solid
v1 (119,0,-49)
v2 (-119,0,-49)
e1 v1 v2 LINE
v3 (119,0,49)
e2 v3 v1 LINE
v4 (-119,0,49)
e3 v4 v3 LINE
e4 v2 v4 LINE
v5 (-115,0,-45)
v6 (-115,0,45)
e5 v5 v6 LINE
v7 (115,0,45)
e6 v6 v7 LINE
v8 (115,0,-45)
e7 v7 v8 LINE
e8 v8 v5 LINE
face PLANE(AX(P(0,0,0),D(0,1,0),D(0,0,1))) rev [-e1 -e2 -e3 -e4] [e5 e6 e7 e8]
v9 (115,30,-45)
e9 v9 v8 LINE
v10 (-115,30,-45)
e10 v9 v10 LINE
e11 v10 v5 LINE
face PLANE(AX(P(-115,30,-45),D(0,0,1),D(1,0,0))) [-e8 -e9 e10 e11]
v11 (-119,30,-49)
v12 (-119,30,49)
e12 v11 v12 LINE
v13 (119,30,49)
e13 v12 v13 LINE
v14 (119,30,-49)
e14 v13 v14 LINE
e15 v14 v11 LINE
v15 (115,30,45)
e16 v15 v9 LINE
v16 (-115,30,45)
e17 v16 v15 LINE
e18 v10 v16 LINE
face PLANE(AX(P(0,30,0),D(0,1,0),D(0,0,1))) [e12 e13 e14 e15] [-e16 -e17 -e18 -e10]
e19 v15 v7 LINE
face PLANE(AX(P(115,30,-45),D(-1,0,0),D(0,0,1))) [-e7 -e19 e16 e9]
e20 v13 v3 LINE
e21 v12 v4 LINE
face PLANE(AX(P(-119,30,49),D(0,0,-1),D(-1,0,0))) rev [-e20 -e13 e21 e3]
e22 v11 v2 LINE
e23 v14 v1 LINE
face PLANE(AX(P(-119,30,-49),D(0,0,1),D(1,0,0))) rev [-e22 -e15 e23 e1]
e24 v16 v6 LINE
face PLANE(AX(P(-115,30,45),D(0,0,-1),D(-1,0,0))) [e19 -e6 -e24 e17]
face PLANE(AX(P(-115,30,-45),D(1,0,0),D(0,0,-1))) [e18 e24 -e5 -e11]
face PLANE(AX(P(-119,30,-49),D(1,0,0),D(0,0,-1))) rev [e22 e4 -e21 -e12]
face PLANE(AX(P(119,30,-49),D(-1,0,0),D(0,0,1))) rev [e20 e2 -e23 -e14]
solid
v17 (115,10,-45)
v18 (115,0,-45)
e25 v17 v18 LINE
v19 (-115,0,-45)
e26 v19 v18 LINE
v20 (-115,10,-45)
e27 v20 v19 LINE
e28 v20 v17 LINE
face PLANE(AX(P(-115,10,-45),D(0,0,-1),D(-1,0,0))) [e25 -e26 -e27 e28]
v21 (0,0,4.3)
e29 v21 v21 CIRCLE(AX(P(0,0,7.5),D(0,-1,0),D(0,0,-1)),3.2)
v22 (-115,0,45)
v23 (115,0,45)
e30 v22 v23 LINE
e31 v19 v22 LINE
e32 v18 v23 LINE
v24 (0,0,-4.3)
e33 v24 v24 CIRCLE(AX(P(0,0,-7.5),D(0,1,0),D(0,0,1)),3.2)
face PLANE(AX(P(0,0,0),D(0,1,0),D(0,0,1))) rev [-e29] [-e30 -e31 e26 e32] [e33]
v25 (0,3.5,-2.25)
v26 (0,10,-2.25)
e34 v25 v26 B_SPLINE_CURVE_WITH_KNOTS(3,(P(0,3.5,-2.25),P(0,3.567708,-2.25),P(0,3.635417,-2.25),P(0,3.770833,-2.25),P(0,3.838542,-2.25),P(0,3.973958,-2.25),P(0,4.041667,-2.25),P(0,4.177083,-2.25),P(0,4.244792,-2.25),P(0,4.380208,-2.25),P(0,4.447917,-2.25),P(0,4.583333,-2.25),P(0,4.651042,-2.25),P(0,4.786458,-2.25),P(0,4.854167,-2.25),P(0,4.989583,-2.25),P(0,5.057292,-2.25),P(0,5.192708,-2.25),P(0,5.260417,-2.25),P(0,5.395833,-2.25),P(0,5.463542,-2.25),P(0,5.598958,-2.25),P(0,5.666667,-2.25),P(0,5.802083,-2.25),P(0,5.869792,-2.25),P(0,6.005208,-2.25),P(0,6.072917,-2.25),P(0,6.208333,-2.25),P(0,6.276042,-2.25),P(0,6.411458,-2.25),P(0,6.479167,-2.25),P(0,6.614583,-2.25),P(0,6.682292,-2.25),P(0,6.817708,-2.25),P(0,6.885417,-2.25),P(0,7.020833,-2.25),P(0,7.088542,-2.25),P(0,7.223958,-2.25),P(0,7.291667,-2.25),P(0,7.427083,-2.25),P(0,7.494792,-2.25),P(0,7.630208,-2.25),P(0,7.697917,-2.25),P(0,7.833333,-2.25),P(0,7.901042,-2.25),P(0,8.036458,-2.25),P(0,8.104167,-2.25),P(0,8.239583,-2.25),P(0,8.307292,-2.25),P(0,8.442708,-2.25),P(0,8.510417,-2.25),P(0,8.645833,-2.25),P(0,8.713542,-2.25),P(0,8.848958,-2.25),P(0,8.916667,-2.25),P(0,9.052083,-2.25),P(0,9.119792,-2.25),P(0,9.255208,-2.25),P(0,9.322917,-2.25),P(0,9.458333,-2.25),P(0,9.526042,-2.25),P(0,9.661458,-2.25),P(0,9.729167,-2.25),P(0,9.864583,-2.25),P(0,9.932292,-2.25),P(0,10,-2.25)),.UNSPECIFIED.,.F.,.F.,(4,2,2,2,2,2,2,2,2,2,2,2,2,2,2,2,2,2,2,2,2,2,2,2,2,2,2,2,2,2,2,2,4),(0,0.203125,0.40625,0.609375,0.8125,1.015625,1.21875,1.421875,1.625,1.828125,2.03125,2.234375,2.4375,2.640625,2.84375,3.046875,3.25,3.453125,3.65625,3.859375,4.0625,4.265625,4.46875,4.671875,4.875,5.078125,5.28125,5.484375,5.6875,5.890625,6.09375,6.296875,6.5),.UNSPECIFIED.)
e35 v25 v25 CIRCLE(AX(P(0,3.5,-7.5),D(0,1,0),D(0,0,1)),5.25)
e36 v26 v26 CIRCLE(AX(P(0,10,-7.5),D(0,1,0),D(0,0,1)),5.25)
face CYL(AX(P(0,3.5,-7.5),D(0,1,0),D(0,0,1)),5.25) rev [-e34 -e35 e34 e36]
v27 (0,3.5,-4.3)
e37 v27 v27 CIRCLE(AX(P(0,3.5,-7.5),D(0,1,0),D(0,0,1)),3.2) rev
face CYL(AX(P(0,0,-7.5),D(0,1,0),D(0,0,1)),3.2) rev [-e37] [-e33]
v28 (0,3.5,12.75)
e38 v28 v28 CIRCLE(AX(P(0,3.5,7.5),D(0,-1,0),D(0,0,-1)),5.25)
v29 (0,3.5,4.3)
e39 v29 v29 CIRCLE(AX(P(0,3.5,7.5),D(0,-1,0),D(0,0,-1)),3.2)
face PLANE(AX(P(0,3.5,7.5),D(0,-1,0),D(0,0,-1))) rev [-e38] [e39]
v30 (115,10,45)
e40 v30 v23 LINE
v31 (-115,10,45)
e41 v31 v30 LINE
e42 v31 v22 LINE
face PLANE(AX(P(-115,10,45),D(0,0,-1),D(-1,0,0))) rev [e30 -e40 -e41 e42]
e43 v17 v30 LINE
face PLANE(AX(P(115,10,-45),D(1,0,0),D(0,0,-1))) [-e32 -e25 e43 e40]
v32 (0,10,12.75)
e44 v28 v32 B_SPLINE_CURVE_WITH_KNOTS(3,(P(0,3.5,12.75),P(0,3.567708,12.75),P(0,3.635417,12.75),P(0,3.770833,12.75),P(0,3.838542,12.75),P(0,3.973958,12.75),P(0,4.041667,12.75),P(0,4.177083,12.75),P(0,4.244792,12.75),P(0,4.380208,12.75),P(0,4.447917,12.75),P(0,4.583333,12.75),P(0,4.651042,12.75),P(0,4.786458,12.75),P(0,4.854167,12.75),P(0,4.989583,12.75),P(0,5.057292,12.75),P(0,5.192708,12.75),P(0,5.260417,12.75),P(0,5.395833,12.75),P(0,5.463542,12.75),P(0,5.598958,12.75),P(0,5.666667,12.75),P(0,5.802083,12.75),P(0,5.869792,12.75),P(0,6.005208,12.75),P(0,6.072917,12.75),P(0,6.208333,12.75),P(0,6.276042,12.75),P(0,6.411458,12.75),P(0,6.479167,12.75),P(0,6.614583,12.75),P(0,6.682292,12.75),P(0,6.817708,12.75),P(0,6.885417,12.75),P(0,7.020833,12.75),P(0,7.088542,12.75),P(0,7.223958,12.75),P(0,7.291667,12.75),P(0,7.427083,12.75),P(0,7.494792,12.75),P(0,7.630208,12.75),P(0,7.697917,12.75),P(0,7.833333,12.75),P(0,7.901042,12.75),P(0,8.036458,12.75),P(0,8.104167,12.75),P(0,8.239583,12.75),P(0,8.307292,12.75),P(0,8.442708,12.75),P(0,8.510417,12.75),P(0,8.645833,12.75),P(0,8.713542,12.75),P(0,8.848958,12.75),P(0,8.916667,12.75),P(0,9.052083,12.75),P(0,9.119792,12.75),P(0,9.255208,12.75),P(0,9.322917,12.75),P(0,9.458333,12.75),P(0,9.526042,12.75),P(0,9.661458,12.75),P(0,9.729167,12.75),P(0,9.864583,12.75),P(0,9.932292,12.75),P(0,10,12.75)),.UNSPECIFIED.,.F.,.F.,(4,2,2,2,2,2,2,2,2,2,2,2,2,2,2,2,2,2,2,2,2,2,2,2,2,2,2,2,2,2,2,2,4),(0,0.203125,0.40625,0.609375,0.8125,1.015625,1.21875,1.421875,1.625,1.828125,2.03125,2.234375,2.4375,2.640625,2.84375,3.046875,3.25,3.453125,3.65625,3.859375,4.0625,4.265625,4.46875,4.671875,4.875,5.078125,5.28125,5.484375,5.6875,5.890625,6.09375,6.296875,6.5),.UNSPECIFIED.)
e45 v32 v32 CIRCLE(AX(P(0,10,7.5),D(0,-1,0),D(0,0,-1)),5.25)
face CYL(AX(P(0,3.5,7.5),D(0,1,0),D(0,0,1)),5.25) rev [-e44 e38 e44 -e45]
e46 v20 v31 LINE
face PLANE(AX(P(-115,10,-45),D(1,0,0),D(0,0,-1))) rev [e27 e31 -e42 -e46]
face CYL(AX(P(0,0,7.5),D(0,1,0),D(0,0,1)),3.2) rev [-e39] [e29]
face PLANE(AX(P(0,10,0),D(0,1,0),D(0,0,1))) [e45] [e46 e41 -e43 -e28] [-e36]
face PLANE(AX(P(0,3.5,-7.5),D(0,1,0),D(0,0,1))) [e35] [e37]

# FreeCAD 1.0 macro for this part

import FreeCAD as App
import Part
import Sketcher

doc = App.newDocument("Part")
body = doc.addObject("PartDesign::Body", "Body")

# Sketch on XZ plane
sketch1 = body.newObject("Sketcher::SketchObject", "Sketch")
sketch1.AttachmentSupport = (doc.getObject("XZ_Plane"), [""])
sketch1.MapMode = "FlatFace"
sketch1.addGeometry([
    Part.LineSegment(App.Vector(-119, -49, 0), App.Vector(-119, 49, 0)),  # 0
    Part.LineSegment(App.Vector(-119, 49, 0), App.Vector(119, 49, 0)),  # 1
    Part.LineSegment(App.Vector(119, 49, 0), App.Vector(119, -49, 0)),  # 2
    Part.LineSegment(App.Vector(119, -49, 0), App.Vector(-119, -49, 0)),  # 3
    Part.LineSegment(App.Vector(115, 45, 0), App.Vector(-115, 45, 0)),  # 4
    Part.LineSegment(App.Vector(-115, 45, 0), App.Vector(-115, -45, 0)),  # 5
    Part.LineSegment(App.Vector(-115, -45, 0), App.Vector(115, -45, 0)),  # 6
    Part.LineSegment(App.Vector(115, -45, 0), App.Vector(115, 45, 0)),  # 7
], False)
sketch1.addConstraint([
    Sketcher.Constraint("Coincident", 0, 2, 1, 1),
    Sketcher.Constraint("Coincident", 1, 2, 2, 1),
    Sketcher.Constraint("Coincident", 2, 2, 3, 1),
    Sketcher.Constraint("Coincident", 3, 2, 0, 1),
    Sketcher.Constraint("Coincident", 4, 2, 5, 1),
    Sketcher.Constraint("Coincident", 5, 2, 6, 1),
    Sketcher.Constraint("Coincident", 6, 2, 7, 1),
    Sketcher.Constraint("Coincident", 7, 2, 4, 1),
    Sketcher.Constraint("Vertical", 0),
    Sketcher.Constraint("Horizontal", 1),
    Sketcher.Constraint("Vertical", 2),
    Sketcher.Constraint("Horizontal", 3),
    Sketcher.Constraint("Horizontal", 4),
    Sketcher.Constraint("Vertical", 5),
    Sketcher.Constraint("Horizontal", 6),
    Sketcher.Constraint("Vertical", 7),
    Sketcher.Constraint("Symmetric", 0, 2, 2, 2, -1, 1),
    Sketcher.Constraint("Symmetric", 4, 2, 6, 2, -1, 1),
    Sketcher.Constraint("DistanceX", 1, 1, 1, 2, 238.0),
    Sketcher.Constraint("DistanceX", 4, 2, 4, 1, 230.0),
    Sketcher.Constraint("DistanceY", 0, 1, 0, 2, 98.0),
    Sketcher.Constraint("DistanceY", 5, 2, 5, 1, 90.0),
])
pad1 = body.newObject("PartDesign::Pad", "Pad")
pad1.Profile = sketch1
pad1.Length = 30
pad1.Reversed = True
body2 = doc.addObject("PartDesign::Body", "Body001")

# Sketch on XZ plane
sketch2 = body2.newObject("Sketcher::SketchObject", "Sketch001")
sketch2.AttachmentSupport = (doc.getObject("XZ_Plane001"), [""])
sketch2.MapMode = "FlatFace"
sketch2.addGeometry([
    Part.LineSegment(App.Vector(-115, -45, 0), App.Vector(-115, 45, 0)),
    Part.LineSegment(App.Vector(-115, 45, 0), App.Vector(115, 45, 0)),
    Part.LineSegment(App.Vector(115, 45, 0), App.Vector(115, -45, 0)),
    Part.LineSegment(App.Vector(115, -45, 0), App.Vector(-115, -45, 0)),
], False)
sketch2.addConstraint([
    Sketcher.Constraint("Coincident", 0, 2, 1, 1),
    Sketcher.Constraint("Coincident", 1, 2, 2, 1),
    Sketcher.Constraint("Coincident", 2, 2, 3, 1),
    Sketcher.Constraint("Coincident", 3, 2, 0, 1),
    Sketcher.Constraint("Vertical", 0),
    Sketcher.Constraint("Horizontal", 1),
    Sketcher.Constraint("Vertical", 2),
    Sketcher.Constraint("Horizontal", 3),
    Sketcher.Constraint("Symmetric", 0, 2, 2, 2, -1, 1),
    Sketcher.Constraint("DistanceX", 1, 1, 1, 2, 230.0),
    Sketcher.Constraint("DistanceY", 0, 1, 0, 2, 90.0),
])
pad2 = body2.newObject("PartDesign::Pad", "Pad001")
pad2.Profile = sketch2
pad2.Length = 10
pad2.Reversed = True

# Sketch on XZ plane
sketch3 = body2.newObject("Sketcher::SketchObject", "Sketch002")
sketch3.AttachmentSupport = (doc.getObject("XZ_Plane001"), [""])
sketch3.MapMode = "FlatFace"
sketch3.AttachmentOffset = App.Placement(App.Vector(0, 0, -10), App.Rotation())
sketch3.addGeometry([
    Part.Circle(App.Vector(0, -7.5, 0), App.Vector(0, 0, 1), 3.2),
    Part.Circle(App.Vector(0, 7.5, 0), App.Vector(0, 0, 1), 3.2),
], False)
sketch3.addConstraint([
    Sketcher.Constraint("Equal", 0, 1),
    Sketcher.Constraint("Symmetric", 0, 3, 1, 3, -1, 1),
    Sketcher.Constraint("PointOnObject", 0, 3, -2),
    Sketcher.Constraint("Diameter", 0, 6.4),
    Sketcher.Constraint("DistanceY", 0, 3, 1, 3, 15.0),
])
pocket1 = body2.newObject("PartDesign::Pocket", "Pocket")
pocket1.Profile = sketch3
pocket1.Type = "ThroughAll"
pocket1.Reversed = True

# Sketch on XZ plane
sketch4 = body2.newObject("Sketcher::SketchObject", "Sketch003")
sketch4.AttachmentSupport = (doc.getObject("XZ_Plane001"), [""])
sketch4.MapMode = "FlatFace"
sketch4.AttachmentOffset = App.Placement(App.Vector(0, 0, -10), App.Rotation())
sketch4.addGeometry([
    Part.Circle(App.Vector(0, -8, 0), App.Vector(0, 0, 1), 5),
    Part.Circle(App.Vector(0, 8, 0), App.Vector(0, 0, 1), 5),
], False)
sketch4.addConstraint([
    Sketcher.Constraint("Equal", 0, 1),
    Sketcher.Constraint("Symmetric", 0, 3, 1, 3, -1, 1),
    Sketcher.Constraint("PointOnObject", 0, 3, -2),
    Sketcher.Constraint("Diameter", 0, 10.5),
    Sketcher.Constraint("DistanceY", 0, 3, 1, 3, 15.0),
])
pocket2 = body2.newObject("PartDesign::Pocket", "Pocket001")
pocket2.Profile = sketch4
pocket2.Length = 6.5
pocket2.Reversed = True

doc.recompute()
